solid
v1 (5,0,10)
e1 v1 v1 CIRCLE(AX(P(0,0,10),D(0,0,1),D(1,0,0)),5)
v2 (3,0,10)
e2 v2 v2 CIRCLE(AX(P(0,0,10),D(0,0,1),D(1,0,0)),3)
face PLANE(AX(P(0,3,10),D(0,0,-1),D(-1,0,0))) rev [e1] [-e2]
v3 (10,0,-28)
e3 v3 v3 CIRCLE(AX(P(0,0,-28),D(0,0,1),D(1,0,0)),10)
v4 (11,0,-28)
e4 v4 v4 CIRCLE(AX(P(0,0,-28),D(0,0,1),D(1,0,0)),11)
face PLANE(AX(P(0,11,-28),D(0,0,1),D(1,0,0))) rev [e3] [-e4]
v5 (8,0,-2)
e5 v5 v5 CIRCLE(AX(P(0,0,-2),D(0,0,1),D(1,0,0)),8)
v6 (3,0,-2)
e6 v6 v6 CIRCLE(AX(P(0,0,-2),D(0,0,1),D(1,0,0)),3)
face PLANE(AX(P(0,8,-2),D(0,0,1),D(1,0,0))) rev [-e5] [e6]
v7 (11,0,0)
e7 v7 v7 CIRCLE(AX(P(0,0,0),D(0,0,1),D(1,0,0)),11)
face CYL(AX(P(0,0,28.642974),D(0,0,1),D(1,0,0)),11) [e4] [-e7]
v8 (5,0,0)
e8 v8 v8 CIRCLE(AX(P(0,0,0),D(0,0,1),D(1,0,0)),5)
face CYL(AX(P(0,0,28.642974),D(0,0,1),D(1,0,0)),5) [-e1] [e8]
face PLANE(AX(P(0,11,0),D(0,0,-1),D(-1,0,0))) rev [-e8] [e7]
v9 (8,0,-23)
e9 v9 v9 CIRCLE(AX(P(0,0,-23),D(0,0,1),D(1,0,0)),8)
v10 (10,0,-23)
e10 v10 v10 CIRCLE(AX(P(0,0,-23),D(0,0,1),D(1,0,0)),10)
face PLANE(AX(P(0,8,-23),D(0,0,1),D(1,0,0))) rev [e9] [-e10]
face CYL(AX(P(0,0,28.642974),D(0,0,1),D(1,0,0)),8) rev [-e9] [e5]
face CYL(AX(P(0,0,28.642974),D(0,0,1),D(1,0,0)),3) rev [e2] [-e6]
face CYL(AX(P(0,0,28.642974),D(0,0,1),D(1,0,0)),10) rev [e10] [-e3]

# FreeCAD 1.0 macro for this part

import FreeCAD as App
import Part
import Sketcher

doc = App.newDocument("Part")
body = doc.addObject("PartDesign::Body", "Body")

sketch1 = doc.addObject("Sketcher::SketchObject", "Sketch")
body.addObject(sketch1)
sketch1.AttachmentSupport = (doc.YZ_Plane, [""])
sketch1.MapMode = "FlatFace"
sketch1.addGeometry(Part.LineSegment(App.Vector(11, -28, 0), App.Vector(11, 0, 0)), False)
sketch1.addGeometry(Part.LineSegment(App.Vector(11, 0, 0), App.Vector(5, 0, 0)), False)
sketch1.addGeometry(Part.LineSegment(App.Vector(5, 0, 0), App.Vector(5, 10, 0)), False)
sketch1.addGeometry(Part.LineSegment(App.Vector(5, 10, 0), App.Vector(3, 10, 0)), False)
sketch1.addGeometry(Part.LineSegment(App.Vector(3, 10, 0), App.Vector(3, -2, 0)), False)
sketch1.addGeometry(Part.LineSegment(App.Vector(3, -2, 0), App.Vector(8, -2, 0)), False)
sketch1.addGeometry(Part.LineSegment(App.Vector(8, -2, 0), App.Vector(8, -23, 0)), False)
sketch1.addGeometry(Part.LineSegment(App.Vector(8, -23, 0), App.Vector(10, -23, 0)), False)
sketch1.addGeometry(Part.LineSegment(App.Vector(10, -23, 0), App.Vector(10, -28, 0)), False)
sketch1.addGeometry(Part.LineSegment(App.Vector(10, -28, 0), App.Vector(11, -28, 0)), False)
sketch1.addConstraint(Sketcher.Constraint("Coincident", 0, 2, 1, 1))
sketch1.addConstraint(Sketcher.Constraint("Coincident", 1, 2, 2, 1))
sketch1.addConstraint(Sketcher.Constraint("Coincident", 2, 2, 3, 1))
sketch1.addConstraint(Sketcher.Constraint("Coincident", 3, 2, 4, 1))
sketch1.addConstraint(Sketcher.Constraint("Coincident", 4, 2, 5, 1))
sketch1.addConstraint(Sketcher.Constraint("Coincident", 5, 2, 6, 1))
sketch1.addConstraint(Sketcher.Constraint("Coincident", 6, 2, 7, 1))
sketch1.addConstraint(Sketcher.Constraint("Coincident", 7, 2, 8, 1))
sketch1.addConstraint(Sketcher.Constraint("Coincident", 8, 2, 9, 1))
sketch1.addConstraint(Sketcher.Constraint("Coincident", 9, 2, 0, 1))
sketch1.addConstraint(Sketcher.Constraint("Vertical", 0))
sketch1.addConstraint(Sketcher.Constraint("Horizontal", 1))
sketch1.addConstraint(Sketcher.Constraint("Vertical", 2))
sketch1.addConstraint(Sketcher.Constraint("Horizontal", 3))
sketch1.addConstraint(Sketcher.Constraint("Vertical", 4))
sketch1.addConstraint(Sketcher.Constraint("Horizontal", 5))
sketch1.addConstraint(Sketcher.Constraint("Vertical", 6))
sketch1.addConstraint(Sketcher.Constraint("Horizontal", 7))
sketch1.addConstraint(Sketcher.Constraint("Vertical", 8))
sketch1.addConstraint(Sketcher.Constraint("Horizontal", 9))
sketch1.addConstraint(Sketcher.Constraint("PointOnObject", 0, 2, -1))
sketch1.addConstraint(Sketcher.Constraint("Equal", 3, 7))
sketch1.addConstraint(Sketcher.Constraint("Equal", 5, 8))
sketch1.addConstraint(Sketcher.Constraint("DistanceX", 1, 2, 1, 1, 6.0))
sketch1.addConstraint(Sketcher.Constraint("DistanceX", 3, 2, 3, 1, 2.0))
sketch1.addConstraint(Sketcher.Constraint("DistanceX", 5, 1, 5, 2, 5.0))
sketch1.addConstraint(Sketcher.Constraint("DistanceY", 0, 1, 0, 2, 28.0))
sketch1.addConstraint(Sketcher.Constraint("DistanceY", 2, 1, 2, 2, 10.0))
sketch1.addConstraint(Sketcher.Constraint("DistanceY", 4, 2, 4, 1, 12.0))
sketch1.addConstraint(Sketcher.Constraint("DistanceX", -1, 1, 0, 2, 11.0))
revolution = doc.addObject("PartDesign::Revolution", "Revolution")
body.addObject(revolution)
revolution.Profile = sketch1
revolution.ReferenceAxis = (sketch1, ["V_Axis"])
revolution.Angle = 360

doc.recompute()
